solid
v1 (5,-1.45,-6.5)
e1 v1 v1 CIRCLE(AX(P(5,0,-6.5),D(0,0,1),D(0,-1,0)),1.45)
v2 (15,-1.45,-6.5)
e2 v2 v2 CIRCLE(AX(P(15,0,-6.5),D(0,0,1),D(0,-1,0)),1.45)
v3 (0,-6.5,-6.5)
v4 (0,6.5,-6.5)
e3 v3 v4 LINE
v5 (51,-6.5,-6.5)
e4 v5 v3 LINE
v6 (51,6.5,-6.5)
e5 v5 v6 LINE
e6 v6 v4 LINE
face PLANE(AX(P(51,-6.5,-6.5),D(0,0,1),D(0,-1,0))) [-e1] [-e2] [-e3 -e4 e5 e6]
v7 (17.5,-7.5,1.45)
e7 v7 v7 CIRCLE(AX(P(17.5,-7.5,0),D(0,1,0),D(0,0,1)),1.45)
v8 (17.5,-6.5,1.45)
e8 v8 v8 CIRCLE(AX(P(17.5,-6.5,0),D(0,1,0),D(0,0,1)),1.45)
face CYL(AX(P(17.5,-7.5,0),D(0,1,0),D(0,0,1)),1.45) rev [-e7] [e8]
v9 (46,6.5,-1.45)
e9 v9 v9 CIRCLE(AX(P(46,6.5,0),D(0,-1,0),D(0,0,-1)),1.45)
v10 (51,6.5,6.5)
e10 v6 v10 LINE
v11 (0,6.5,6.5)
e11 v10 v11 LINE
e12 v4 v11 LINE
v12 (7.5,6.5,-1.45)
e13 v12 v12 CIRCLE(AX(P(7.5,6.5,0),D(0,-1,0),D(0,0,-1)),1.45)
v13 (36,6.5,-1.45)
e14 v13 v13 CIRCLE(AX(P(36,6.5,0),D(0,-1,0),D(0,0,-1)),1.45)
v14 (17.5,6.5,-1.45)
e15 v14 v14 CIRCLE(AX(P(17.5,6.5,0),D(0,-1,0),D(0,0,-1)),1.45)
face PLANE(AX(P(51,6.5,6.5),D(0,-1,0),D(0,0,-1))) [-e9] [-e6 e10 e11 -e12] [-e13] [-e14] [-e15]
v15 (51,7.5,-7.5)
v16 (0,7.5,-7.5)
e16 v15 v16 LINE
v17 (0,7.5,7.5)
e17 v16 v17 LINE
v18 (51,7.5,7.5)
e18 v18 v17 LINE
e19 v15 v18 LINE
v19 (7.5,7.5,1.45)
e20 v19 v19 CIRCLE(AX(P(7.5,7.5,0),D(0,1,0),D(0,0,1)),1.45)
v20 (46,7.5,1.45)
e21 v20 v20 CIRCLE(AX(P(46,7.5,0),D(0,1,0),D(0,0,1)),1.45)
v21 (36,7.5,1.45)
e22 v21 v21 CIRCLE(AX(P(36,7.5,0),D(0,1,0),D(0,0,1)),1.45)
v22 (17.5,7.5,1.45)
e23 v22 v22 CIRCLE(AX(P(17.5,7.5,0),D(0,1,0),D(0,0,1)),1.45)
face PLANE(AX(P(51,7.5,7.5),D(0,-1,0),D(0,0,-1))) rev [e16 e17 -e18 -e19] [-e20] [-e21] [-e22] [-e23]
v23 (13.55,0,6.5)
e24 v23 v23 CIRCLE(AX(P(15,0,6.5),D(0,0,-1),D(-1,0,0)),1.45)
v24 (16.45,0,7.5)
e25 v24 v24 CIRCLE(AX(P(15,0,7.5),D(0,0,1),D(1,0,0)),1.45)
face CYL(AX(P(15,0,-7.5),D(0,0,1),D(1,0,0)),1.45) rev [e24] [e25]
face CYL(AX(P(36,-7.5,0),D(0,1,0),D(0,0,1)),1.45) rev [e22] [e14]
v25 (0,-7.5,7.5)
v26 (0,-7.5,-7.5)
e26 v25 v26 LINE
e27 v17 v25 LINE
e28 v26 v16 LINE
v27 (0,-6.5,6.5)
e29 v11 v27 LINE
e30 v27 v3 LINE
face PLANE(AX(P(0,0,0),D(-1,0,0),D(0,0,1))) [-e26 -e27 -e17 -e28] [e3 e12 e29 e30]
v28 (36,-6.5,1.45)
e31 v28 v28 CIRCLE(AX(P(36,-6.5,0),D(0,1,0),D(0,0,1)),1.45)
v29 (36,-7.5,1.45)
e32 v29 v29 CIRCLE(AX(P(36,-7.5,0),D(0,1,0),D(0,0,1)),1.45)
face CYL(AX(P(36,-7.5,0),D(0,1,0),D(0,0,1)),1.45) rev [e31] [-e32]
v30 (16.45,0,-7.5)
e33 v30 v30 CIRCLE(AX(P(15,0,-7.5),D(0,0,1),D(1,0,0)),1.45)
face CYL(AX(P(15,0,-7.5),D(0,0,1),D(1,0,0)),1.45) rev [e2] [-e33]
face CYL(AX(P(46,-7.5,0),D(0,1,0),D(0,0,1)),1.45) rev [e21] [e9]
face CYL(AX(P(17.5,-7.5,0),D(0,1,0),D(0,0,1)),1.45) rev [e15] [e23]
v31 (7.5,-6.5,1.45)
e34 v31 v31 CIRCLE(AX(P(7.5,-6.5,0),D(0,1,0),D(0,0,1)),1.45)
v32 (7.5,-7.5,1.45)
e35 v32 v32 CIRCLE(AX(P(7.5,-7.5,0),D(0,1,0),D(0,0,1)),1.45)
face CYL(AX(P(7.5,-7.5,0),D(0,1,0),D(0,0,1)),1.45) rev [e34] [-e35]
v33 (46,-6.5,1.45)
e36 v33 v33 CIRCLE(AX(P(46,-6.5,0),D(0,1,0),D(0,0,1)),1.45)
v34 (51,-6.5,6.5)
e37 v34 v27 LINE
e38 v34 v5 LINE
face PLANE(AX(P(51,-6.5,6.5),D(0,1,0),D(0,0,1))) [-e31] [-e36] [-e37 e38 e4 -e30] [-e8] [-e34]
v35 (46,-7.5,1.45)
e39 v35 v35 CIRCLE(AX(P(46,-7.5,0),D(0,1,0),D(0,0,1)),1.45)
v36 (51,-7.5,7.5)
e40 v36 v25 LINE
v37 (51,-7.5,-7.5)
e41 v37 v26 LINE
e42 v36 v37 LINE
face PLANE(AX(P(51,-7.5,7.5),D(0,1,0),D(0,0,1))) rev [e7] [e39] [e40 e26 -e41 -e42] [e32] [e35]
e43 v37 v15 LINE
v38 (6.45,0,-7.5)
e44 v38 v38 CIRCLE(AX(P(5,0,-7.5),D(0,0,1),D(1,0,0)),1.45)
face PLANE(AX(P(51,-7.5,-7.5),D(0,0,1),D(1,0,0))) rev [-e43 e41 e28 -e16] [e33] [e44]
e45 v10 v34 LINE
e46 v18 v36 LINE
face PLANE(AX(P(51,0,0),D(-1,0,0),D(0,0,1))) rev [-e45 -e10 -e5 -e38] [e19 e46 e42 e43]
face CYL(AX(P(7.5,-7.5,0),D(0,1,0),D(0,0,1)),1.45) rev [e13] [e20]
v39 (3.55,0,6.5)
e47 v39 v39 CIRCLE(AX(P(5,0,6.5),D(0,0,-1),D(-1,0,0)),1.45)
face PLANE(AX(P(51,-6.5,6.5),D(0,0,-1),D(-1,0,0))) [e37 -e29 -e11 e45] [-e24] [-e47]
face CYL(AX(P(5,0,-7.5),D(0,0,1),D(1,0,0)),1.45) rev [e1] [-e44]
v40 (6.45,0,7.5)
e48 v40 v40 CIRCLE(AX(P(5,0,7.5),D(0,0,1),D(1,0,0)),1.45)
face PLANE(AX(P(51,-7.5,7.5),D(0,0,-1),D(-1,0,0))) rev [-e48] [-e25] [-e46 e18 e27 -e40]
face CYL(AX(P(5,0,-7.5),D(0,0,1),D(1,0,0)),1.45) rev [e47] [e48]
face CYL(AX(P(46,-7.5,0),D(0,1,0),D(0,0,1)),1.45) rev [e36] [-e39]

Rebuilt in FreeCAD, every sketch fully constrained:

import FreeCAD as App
import Part
import Sketcher

V = App.Vector


def add_polygon(sketch, points):
    """Adds a closed chain of lines whose ends are joined by coincident constraints."""
    first, n = sketch.GeometryCount, len(points)
    for a, b in zip(points, points[1:] + points[:1]):
        sketch.addGeometry(Part.LineSegment(App.Vector(*a, 0), App.Vector(*b, 0)), False)
    for i in range(n):
        sketch.addConstraint(Sketcher.Constraint("Coincident", first + i, 2, first + (i + 1) % n, 1))

doc = App.newDocument("Part")
params = doc.addObject("Spreadsheet::Sheet", "Params")
for row, (alias, value) in enumerate([
    ("sketch1_width", "15 mm"),
    ("sketch1_width2", "13 mm"),
    ("pad1_length", "51 mm"),
    ("sketch2_diameter", "2.9 mm"),
    ("sketch3_diameter", "2.9 mm"),
], start=1):
    params.set(f"A{row}", alias)
    params.set(f"B{row}", "=" + value)
    params.setAlias(f"B{row}", alias)

body = doc.addObject("PartDesign::Body", "Body")

# Sketch on YZ plane
sketch1 = body.newObject("Sketcher::SketchObject", "Sketch")
sketch1.AttachmentSupport = (doc.getObject("YZ_Plane"), [""])
sketch1.MapMode = "FlatFace"
add_polygon(sketch1, [(8, 8), (-8, 8), (-8, -8), (8, -8)])  # lines 0-3
add_polygon(sketch1, [(-6, -6), (-6, 6), (6, 6), (6, -6)])  # lines 4-7
sketch1.addConstraint(Sketcher.Constraint("Horizontal", 0))
sketch1.addConstraint(Sketcher.Constraint("Vertical", 1))
sketch1.addConstraint(Sketcher.Constraint("Horizontal", 2))
sketch1.addConstraint(Sketcher.Constraint("Vertical", 3))
sketch1.addConstraint(Sketcher.Constraint("Vertical", 4))
sketch1.addConstraint(Sketcher.Constraint("Horizontal", 5))
sketch1.addConstraint(Sketcher.Constraint("Vertical", 6))
sketch1.addConstraint(Sketcher.Constraint("Horizontal", 7))
sketch1.addConstraint(Sketcher.Constraint("Symmetric", 0, 2, 2, 2, -1, 1))
sketch1.addConstraint(Sketcher.Constraint("Symmetric", 4, 2, 6, 2, -1, 1))
sketch1.addConstraint(Sketcher.Constraint("Equal", 2, 1))
sketch1.addConstraint(Sketcher.Constraint("Equal", 7, 4))
sketch1.addConstraint(Sketcher.Constraint("DistanceX", 0, 2, 0, 1, 15.0))
sketch1.addConstraint(Sketcher.Constraint("DistanceX", 5, 1, 5, 2, 13.0))
sketch1.setExpression("Constraints[20]", "Params.sketch1_width")
sketch1.setExpression("Constraints[21]", "Params.sketch1_width2")
pad1 = body.newObject("PartDesign::Pad", "Pad")
pad1.Profile = sketch1
pad1.setExpression("Length", "Params.pad1_length")

# Sketch on XZ plane
sketch2 = body.newObject("Sketcher::SketchObject", "Sketch001")
sketch2.AttachmentSupport = (doc.getObject("XZ_Plane"), [""])
sketch2.MapMode = "FlatFace"
sketch2.AttachmentOffset = App.Placement(V(0, 0, -7.5), App.Rotation())
sketch2.addGeometry(Part.Circle(V(7.5, 0, 0), V(0, 0, 1), 1.4), False)
sketch2.addGeometry(Part.Circle(V(17.5, 0, 0), V(0, 0, 1), 1.4), False)
sketch2.addGeometry(Part.Circle(V(46, 0, 0), V(0, 0, 1), 1.4), False)
sketch2.addGeometry(Part.Circle(V(36, 0, 0), V(0, 0, 1), 1.4), False)
sketch2.addConstraint(Sketcher.Constraint("Equal", 0, 1))
sketch2.addConstraint(Sketcher.Constraint("Equal", 1, 2))
sketch2.addConstraint(Sketcher.Constraint("Equal", 2, 3))
sketch2.addConstraint(Sketcher.Constraint("PointOnObject", 0, 3, -1))
sketch2.addConstraint(Sketcher.Constraint("PointOnObject", 1, 3, -1))
sketch2.addConstraint(Sketcher.Constraint("PointOnObject", 2, 3, -1))
sketch2.addConstraint(Sketcher.Constraint("PointOnObject", 3, 3, -1))
sketch2.addConstraint(Sketcher.Constraint("Diameter", 0, 2.9))
sketch2.addConstraint(Sketcher.Constraint("DistanceX", -1, 1, 2, 3, 46.0))
sketch2.addConstraint(Sketcher.Constraint("DistanceX", -1, 1, 3, 3, 36.0))
sketch2.addConstraint(Sketcher.Constraint("DistanceX", 0, 3, 1, 3, 10.0))
sketch2.addConstraint(Sketcher.Constraint("DistanceX", -1, 1, 0, 3, 7.5))
sketch2.setExpression("Constraints[7]", "Params.sketch2_diameter")
pocket1 = body.newObject("PartDesign::Pocket", "Pocket")
pocket1.Profile = sketch2
pocket1.Type = "ThroughAll"
pocket1.Reversed = True

# Sketch on XY plane
sketch3 = body.newObject("Sketcher::SketchObject", "Sketch002")
sketch3.AttachmentSupport = (doc.getObject("XY_Plane"), [""])
sketch3.MapMode = "FlatFace"
sketch3.AttachmentOffset = App.Placement(V(0, 0, 7.5), App.Rotation())
sketch3.addGeometry(Part.Circle(V(5, 0, 0), V(0, 0, 1), 1.4), False)
sketch3.addGeometry(Part.Circle(V(15, 0, 0), V(0, 0, 1), 1.4), False)
sketch3.addConstraint(Sketcher.Constraint("Equal", 0, 1))
sketch3.addConstraint(Sketcher.Constraint("PointOnObject", 0, 3, -1))
sketch3.addConstraint(Sketcher.Constraint("PointOnObject", 1, 3, -1))
sketch3.addConstraint(Sketcher.Constraint("Diameter", 0, 2.9))
sketch3.addConstraint(Sketcher.Constraint("DistanceX", -1, 1, 0, 3, 5.0))
sketch3.addConstraint(Sketcher.Constraint("DistanceX", -1, 1, 1, 3, 15.0))
sketch3.setExpression("Constraints[3]", "Params.sketch3_diameter")
pocket2 = body.newObject("PartDesign::Pocket", "Pocket001")
pocket2.Profile = sketch3
pocket2.Type = "ThroughAll"

doc.recompute()
